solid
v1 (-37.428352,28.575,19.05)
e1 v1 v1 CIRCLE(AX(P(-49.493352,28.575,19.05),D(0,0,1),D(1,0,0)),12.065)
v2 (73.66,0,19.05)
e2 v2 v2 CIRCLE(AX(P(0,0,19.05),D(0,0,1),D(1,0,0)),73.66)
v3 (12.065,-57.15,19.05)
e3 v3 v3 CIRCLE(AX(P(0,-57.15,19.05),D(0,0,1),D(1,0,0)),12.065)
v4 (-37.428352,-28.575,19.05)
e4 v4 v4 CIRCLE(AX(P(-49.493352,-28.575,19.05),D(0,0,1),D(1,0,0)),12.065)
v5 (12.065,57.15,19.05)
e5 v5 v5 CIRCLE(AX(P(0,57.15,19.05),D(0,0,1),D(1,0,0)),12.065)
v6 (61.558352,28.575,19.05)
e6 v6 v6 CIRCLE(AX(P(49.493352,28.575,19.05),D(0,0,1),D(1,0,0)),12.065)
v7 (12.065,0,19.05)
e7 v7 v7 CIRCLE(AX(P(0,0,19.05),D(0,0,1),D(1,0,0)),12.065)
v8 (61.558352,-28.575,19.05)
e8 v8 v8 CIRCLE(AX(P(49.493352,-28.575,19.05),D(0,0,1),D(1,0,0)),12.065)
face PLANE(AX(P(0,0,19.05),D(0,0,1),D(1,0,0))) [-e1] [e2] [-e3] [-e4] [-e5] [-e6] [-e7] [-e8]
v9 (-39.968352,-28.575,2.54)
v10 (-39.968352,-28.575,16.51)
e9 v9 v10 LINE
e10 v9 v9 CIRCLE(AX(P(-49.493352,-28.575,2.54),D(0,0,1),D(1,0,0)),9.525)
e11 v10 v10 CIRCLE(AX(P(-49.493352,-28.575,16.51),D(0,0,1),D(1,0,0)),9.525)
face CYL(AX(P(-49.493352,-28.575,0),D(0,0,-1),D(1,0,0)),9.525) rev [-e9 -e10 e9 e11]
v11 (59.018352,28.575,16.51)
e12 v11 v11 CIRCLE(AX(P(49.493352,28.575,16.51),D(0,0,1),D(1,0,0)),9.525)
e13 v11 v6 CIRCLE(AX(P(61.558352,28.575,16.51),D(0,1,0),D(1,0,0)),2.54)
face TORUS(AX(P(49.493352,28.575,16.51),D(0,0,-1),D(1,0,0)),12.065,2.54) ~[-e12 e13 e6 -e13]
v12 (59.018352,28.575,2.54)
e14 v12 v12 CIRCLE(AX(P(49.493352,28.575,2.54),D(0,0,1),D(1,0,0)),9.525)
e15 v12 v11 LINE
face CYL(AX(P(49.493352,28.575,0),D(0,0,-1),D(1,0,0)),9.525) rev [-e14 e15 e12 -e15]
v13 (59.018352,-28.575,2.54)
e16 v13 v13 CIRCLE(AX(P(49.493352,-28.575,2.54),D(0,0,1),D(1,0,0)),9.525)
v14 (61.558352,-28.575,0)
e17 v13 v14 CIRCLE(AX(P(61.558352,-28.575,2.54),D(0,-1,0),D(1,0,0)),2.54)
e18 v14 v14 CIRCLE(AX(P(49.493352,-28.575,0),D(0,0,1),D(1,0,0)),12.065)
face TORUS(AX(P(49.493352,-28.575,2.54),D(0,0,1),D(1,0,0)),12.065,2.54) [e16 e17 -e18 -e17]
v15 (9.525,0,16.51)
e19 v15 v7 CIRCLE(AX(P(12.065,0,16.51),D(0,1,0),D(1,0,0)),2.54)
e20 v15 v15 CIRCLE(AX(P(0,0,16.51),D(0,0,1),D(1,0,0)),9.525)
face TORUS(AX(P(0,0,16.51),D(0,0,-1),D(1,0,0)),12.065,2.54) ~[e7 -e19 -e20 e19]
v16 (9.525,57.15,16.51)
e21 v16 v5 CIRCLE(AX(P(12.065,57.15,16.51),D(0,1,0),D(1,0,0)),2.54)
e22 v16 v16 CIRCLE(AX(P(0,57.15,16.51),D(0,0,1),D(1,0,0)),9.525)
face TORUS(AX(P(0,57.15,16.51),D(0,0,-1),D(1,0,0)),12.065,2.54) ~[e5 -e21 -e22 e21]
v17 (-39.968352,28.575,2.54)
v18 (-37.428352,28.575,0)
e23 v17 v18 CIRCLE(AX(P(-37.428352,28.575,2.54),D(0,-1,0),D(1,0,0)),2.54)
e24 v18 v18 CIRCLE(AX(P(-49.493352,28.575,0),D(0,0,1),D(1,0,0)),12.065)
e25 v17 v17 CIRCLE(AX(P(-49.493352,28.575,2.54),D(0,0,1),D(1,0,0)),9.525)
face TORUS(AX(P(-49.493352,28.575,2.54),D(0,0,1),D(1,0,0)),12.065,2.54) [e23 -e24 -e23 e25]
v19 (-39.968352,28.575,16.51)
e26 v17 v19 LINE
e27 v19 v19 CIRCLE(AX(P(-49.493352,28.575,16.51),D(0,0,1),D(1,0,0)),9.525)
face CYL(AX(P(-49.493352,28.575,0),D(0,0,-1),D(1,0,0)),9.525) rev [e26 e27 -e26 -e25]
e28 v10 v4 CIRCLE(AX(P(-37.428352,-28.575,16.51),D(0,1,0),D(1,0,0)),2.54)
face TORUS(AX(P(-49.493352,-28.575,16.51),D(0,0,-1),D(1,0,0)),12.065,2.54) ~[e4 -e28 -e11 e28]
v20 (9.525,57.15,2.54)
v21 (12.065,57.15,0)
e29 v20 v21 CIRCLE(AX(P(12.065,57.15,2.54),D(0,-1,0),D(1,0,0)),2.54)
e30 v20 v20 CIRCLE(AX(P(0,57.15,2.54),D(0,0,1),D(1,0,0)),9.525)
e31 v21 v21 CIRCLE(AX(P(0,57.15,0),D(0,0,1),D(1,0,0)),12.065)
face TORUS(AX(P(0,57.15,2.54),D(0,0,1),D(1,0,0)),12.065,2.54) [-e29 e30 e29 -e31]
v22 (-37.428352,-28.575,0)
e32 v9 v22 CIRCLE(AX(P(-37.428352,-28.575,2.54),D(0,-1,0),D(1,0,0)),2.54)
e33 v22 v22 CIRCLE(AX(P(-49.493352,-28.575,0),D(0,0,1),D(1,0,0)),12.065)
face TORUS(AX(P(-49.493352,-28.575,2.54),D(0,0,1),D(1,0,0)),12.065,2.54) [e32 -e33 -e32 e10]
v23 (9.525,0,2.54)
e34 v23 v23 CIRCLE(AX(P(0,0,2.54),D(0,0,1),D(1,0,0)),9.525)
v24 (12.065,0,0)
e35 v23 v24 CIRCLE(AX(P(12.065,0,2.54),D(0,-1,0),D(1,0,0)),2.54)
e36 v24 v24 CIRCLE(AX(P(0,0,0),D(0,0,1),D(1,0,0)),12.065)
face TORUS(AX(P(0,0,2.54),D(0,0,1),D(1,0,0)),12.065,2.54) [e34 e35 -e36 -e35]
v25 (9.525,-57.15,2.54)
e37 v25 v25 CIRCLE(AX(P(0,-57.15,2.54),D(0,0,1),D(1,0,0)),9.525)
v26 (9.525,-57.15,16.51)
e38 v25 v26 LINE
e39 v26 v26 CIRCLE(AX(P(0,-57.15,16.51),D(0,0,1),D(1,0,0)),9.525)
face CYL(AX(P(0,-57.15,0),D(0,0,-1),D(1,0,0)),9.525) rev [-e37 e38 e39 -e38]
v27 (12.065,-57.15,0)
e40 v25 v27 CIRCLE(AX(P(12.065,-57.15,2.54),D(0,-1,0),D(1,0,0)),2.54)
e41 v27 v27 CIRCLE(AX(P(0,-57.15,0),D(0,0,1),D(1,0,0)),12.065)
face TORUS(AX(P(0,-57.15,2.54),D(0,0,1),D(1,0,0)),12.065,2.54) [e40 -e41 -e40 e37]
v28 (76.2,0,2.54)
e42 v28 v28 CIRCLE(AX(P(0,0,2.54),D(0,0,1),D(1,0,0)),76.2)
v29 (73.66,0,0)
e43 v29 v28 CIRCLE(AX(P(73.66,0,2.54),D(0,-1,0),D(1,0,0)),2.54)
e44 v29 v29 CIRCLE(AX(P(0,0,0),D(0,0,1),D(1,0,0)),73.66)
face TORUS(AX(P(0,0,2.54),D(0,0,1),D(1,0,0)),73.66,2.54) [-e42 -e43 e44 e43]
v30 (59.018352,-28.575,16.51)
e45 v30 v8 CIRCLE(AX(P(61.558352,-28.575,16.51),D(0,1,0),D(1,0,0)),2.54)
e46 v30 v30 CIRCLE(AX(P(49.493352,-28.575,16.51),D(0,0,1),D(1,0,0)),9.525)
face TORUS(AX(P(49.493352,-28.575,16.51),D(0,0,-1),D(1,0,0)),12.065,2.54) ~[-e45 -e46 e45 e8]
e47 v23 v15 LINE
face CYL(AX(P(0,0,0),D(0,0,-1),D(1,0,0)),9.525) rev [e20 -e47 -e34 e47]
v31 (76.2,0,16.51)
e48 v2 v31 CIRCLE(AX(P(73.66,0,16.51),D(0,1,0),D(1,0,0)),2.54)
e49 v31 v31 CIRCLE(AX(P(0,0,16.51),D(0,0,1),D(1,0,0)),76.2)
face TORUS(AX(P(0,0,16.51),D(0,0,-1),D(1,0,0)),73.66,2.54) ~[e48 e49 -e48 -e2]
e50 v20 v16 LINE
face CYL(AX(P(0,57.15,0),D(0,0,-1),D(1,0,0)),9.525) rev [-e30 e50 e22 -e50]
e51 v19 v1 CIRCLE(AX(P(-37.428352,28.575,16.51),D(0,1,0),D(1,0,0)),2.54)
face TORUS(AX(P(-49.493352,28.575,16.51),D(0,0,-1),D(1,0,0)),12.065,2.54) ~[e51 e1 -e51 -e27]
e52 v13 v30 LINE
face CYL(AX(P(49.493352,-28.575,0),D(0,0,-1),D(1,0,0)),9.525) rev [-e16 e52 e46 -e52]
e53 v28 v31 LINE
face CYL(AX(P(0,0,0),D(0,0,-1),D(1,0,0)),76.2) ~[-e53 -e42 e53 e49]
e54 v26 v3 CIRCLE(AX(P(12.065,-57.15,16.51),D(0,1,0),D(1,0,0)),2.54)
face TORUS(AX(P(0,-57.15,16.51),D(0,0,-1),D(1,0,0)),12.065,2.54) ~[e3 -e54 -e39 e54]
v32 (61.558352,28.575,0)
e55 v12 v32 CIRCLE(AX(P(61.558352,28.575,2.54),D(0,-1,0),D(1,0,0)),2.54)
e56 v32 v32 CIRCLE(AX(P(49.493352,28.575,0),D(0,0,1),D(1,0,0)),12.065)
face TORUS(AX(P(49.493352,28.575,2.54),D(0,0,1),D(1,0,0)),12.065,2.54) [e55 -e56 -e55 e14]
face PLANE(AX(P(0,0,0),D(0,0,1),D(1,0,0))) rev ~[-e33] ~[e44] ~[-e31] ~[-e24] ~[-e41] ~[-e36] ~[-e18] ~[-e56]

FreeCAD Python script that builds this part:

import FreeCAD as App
import Part
import Sketcher
from FreeCAD import Vector
Q = App.Units.Quantity


def edges_at(feature, points):
    """Names of the edges that pass closest to the given points."""
    edges = feature.Shape.Edges
    near = lambda p: min(range(len(edges)), key=lambda i: edges[i].distToShape(Part.Vertex(*p))[0])
    return sorted({f"Edge{near(p) + 1}" for p in points})

doc = App.newDocument("Part")
body = doc.addObject("PartDesign::Body", "Body")

# Sketch on XY plane
sketch1 = doc.addObject("Sketcher::SketchObject", "Sketch")
body.addObject(sketch1)
sketch1.AttachmentSupport = (doc.XY_Plane, [""])
sketch1.MapMode = "FlatFace"
sketch1.addGeometry(Part.Circle(Vector(0, 0, 0), Vector(0, 0, 1), 76), False)
sketch1.addGeometry(Part.Circle(Vector(-49, -29, 0), Vector(0, 0, 1), 10), False)
sketch1.addGeometry(Part.Circle(Vector(0, -57, 0), Vector(0, 0, 1), 10), False)
sketch1.addGeometry(Part.Circle(Vector(49, -29, 0), Vector(0, 0, 1), 10), False)
sketch1.addGeometry(Part.Circle(Vector(-49, 29, 0), Vector(0, 0, 1), 10), False)
sketch1.addGeometry(Part.Circle(Vector(0, 0, 0), Vector(0, 0, 1), 10), False)
sketch1.addGeometry(Part.Circle(Vector(49, 29, 0), Vector(0, 0, 1), 10), False)
sketch1.addGeometry(Part.Circle(Vector(0, 57, 0), Vector(0, 0, 1), 10), False)
sketch1.addConstraint(Sketcher.Constraint("Coincident", 0, 3, -1, 1))
sketch1.addConstraint(Sketcher.Constraint("Coincident", 5, 3, -1, 1))
sketch1.addConstraint(Sketcher.Constraint("Equal", 1, 2))
sketch1.addConstraint(Sketcher.Constraint("Equal", 2, 3))
sketch1.addConstraint(Sketcher.Constraint("Equal", 3, 4))
sketch1.addConstraint(Sketcher.Constraint("Equal", 4, 5))
sketch1.addConstraint(Sketcher.Constraint("Equal", 5, 6))
sketch1.addConstraint(Sketcher.Constraint("Equal", 6, 7))
sketch1.addConstraint(Sketcher.Constraint("Symmetric", 3, 3, 4, 3, -1, 1))
sketch1.addConstraint(Sketcher.Constraint("Symmetric", 1, 3, 6, 3, -1, 1))
sketch1.addConstraint(Sketcher.Constraint("Symmetric", 2, 3, 7, 3, -1, 1))
sketch1.addConstraint(Sketcher.Constraint("Symmetric", 1, 3, 3, 3, -2))
sketch1.addConstraint(Sketcher.Constraint("PointOnObject", 2, 3, -2))
sketch1.addConstraint(Sketcher.Constraint("Diameter", 0, Q("6 in")))
sketch1.addConstraint(Sketcher.Constraint("Diameter", 1, Q("0.75 in")))
sketch1.addConstraint(Sketcher.Constraint("DistanceY", 2, 3, -1, 1, Q("2.25 in")))
sketch1.addConstraint(Sketcher.Constraint("DistanceY", 1, 3, 4, 3, Q("2.25 in")))
sketch1.addConstraint(Sketcher.Constraint("DistanceX", 1, 3, -1, 1, 49.493352))
pad1 = doc.addObject("PartDesign::Pad", "Pad")
body.addObject(pad1)
pad1.Profile = sketch1
pad1.Length = Q("0.75 in")
doc.recompute()

fillet = doc.addObject("PartDesign::Fillet", "Fillet")
body.addObject(fillet)
fillet.Base = (pad1, edges_at(pad1, [
    (-59.018, 28.575, 19.05),
    (-9.525, 57.15, 19.05),
    (39.968, 28.575, 19.05),
    (39.968, -28.575, 19.05),
    (-9.525, -57.15, 19.05),
    (-59.018, -28.575, 19.05),
    (-9.525, 0, 19.05),
    (-59.018, 28.575, 0),
    (-59.018, -28.575, 0),
    (-9.525, 0, 0),
    (-9.525, 57.15, 0),
    (39.968, 28.575, 0),
    (39.968, -28.575, 0),
    (-9.525, -57.15, 0),
]))
fillet.Radius = Q("0.1 in")
doc.recompute()

fillet2 = doc.addObject("PartDesign::Fillet", "Fillet001")
body.addObject(fillet2)
fillet2.Base = (fillet, edges_at(fillet, [(-76.2, 0, 0), (-76.2, 0, 19.05)]))
fillet2.Radius = Q("0.1 in")

doc.recompute()
